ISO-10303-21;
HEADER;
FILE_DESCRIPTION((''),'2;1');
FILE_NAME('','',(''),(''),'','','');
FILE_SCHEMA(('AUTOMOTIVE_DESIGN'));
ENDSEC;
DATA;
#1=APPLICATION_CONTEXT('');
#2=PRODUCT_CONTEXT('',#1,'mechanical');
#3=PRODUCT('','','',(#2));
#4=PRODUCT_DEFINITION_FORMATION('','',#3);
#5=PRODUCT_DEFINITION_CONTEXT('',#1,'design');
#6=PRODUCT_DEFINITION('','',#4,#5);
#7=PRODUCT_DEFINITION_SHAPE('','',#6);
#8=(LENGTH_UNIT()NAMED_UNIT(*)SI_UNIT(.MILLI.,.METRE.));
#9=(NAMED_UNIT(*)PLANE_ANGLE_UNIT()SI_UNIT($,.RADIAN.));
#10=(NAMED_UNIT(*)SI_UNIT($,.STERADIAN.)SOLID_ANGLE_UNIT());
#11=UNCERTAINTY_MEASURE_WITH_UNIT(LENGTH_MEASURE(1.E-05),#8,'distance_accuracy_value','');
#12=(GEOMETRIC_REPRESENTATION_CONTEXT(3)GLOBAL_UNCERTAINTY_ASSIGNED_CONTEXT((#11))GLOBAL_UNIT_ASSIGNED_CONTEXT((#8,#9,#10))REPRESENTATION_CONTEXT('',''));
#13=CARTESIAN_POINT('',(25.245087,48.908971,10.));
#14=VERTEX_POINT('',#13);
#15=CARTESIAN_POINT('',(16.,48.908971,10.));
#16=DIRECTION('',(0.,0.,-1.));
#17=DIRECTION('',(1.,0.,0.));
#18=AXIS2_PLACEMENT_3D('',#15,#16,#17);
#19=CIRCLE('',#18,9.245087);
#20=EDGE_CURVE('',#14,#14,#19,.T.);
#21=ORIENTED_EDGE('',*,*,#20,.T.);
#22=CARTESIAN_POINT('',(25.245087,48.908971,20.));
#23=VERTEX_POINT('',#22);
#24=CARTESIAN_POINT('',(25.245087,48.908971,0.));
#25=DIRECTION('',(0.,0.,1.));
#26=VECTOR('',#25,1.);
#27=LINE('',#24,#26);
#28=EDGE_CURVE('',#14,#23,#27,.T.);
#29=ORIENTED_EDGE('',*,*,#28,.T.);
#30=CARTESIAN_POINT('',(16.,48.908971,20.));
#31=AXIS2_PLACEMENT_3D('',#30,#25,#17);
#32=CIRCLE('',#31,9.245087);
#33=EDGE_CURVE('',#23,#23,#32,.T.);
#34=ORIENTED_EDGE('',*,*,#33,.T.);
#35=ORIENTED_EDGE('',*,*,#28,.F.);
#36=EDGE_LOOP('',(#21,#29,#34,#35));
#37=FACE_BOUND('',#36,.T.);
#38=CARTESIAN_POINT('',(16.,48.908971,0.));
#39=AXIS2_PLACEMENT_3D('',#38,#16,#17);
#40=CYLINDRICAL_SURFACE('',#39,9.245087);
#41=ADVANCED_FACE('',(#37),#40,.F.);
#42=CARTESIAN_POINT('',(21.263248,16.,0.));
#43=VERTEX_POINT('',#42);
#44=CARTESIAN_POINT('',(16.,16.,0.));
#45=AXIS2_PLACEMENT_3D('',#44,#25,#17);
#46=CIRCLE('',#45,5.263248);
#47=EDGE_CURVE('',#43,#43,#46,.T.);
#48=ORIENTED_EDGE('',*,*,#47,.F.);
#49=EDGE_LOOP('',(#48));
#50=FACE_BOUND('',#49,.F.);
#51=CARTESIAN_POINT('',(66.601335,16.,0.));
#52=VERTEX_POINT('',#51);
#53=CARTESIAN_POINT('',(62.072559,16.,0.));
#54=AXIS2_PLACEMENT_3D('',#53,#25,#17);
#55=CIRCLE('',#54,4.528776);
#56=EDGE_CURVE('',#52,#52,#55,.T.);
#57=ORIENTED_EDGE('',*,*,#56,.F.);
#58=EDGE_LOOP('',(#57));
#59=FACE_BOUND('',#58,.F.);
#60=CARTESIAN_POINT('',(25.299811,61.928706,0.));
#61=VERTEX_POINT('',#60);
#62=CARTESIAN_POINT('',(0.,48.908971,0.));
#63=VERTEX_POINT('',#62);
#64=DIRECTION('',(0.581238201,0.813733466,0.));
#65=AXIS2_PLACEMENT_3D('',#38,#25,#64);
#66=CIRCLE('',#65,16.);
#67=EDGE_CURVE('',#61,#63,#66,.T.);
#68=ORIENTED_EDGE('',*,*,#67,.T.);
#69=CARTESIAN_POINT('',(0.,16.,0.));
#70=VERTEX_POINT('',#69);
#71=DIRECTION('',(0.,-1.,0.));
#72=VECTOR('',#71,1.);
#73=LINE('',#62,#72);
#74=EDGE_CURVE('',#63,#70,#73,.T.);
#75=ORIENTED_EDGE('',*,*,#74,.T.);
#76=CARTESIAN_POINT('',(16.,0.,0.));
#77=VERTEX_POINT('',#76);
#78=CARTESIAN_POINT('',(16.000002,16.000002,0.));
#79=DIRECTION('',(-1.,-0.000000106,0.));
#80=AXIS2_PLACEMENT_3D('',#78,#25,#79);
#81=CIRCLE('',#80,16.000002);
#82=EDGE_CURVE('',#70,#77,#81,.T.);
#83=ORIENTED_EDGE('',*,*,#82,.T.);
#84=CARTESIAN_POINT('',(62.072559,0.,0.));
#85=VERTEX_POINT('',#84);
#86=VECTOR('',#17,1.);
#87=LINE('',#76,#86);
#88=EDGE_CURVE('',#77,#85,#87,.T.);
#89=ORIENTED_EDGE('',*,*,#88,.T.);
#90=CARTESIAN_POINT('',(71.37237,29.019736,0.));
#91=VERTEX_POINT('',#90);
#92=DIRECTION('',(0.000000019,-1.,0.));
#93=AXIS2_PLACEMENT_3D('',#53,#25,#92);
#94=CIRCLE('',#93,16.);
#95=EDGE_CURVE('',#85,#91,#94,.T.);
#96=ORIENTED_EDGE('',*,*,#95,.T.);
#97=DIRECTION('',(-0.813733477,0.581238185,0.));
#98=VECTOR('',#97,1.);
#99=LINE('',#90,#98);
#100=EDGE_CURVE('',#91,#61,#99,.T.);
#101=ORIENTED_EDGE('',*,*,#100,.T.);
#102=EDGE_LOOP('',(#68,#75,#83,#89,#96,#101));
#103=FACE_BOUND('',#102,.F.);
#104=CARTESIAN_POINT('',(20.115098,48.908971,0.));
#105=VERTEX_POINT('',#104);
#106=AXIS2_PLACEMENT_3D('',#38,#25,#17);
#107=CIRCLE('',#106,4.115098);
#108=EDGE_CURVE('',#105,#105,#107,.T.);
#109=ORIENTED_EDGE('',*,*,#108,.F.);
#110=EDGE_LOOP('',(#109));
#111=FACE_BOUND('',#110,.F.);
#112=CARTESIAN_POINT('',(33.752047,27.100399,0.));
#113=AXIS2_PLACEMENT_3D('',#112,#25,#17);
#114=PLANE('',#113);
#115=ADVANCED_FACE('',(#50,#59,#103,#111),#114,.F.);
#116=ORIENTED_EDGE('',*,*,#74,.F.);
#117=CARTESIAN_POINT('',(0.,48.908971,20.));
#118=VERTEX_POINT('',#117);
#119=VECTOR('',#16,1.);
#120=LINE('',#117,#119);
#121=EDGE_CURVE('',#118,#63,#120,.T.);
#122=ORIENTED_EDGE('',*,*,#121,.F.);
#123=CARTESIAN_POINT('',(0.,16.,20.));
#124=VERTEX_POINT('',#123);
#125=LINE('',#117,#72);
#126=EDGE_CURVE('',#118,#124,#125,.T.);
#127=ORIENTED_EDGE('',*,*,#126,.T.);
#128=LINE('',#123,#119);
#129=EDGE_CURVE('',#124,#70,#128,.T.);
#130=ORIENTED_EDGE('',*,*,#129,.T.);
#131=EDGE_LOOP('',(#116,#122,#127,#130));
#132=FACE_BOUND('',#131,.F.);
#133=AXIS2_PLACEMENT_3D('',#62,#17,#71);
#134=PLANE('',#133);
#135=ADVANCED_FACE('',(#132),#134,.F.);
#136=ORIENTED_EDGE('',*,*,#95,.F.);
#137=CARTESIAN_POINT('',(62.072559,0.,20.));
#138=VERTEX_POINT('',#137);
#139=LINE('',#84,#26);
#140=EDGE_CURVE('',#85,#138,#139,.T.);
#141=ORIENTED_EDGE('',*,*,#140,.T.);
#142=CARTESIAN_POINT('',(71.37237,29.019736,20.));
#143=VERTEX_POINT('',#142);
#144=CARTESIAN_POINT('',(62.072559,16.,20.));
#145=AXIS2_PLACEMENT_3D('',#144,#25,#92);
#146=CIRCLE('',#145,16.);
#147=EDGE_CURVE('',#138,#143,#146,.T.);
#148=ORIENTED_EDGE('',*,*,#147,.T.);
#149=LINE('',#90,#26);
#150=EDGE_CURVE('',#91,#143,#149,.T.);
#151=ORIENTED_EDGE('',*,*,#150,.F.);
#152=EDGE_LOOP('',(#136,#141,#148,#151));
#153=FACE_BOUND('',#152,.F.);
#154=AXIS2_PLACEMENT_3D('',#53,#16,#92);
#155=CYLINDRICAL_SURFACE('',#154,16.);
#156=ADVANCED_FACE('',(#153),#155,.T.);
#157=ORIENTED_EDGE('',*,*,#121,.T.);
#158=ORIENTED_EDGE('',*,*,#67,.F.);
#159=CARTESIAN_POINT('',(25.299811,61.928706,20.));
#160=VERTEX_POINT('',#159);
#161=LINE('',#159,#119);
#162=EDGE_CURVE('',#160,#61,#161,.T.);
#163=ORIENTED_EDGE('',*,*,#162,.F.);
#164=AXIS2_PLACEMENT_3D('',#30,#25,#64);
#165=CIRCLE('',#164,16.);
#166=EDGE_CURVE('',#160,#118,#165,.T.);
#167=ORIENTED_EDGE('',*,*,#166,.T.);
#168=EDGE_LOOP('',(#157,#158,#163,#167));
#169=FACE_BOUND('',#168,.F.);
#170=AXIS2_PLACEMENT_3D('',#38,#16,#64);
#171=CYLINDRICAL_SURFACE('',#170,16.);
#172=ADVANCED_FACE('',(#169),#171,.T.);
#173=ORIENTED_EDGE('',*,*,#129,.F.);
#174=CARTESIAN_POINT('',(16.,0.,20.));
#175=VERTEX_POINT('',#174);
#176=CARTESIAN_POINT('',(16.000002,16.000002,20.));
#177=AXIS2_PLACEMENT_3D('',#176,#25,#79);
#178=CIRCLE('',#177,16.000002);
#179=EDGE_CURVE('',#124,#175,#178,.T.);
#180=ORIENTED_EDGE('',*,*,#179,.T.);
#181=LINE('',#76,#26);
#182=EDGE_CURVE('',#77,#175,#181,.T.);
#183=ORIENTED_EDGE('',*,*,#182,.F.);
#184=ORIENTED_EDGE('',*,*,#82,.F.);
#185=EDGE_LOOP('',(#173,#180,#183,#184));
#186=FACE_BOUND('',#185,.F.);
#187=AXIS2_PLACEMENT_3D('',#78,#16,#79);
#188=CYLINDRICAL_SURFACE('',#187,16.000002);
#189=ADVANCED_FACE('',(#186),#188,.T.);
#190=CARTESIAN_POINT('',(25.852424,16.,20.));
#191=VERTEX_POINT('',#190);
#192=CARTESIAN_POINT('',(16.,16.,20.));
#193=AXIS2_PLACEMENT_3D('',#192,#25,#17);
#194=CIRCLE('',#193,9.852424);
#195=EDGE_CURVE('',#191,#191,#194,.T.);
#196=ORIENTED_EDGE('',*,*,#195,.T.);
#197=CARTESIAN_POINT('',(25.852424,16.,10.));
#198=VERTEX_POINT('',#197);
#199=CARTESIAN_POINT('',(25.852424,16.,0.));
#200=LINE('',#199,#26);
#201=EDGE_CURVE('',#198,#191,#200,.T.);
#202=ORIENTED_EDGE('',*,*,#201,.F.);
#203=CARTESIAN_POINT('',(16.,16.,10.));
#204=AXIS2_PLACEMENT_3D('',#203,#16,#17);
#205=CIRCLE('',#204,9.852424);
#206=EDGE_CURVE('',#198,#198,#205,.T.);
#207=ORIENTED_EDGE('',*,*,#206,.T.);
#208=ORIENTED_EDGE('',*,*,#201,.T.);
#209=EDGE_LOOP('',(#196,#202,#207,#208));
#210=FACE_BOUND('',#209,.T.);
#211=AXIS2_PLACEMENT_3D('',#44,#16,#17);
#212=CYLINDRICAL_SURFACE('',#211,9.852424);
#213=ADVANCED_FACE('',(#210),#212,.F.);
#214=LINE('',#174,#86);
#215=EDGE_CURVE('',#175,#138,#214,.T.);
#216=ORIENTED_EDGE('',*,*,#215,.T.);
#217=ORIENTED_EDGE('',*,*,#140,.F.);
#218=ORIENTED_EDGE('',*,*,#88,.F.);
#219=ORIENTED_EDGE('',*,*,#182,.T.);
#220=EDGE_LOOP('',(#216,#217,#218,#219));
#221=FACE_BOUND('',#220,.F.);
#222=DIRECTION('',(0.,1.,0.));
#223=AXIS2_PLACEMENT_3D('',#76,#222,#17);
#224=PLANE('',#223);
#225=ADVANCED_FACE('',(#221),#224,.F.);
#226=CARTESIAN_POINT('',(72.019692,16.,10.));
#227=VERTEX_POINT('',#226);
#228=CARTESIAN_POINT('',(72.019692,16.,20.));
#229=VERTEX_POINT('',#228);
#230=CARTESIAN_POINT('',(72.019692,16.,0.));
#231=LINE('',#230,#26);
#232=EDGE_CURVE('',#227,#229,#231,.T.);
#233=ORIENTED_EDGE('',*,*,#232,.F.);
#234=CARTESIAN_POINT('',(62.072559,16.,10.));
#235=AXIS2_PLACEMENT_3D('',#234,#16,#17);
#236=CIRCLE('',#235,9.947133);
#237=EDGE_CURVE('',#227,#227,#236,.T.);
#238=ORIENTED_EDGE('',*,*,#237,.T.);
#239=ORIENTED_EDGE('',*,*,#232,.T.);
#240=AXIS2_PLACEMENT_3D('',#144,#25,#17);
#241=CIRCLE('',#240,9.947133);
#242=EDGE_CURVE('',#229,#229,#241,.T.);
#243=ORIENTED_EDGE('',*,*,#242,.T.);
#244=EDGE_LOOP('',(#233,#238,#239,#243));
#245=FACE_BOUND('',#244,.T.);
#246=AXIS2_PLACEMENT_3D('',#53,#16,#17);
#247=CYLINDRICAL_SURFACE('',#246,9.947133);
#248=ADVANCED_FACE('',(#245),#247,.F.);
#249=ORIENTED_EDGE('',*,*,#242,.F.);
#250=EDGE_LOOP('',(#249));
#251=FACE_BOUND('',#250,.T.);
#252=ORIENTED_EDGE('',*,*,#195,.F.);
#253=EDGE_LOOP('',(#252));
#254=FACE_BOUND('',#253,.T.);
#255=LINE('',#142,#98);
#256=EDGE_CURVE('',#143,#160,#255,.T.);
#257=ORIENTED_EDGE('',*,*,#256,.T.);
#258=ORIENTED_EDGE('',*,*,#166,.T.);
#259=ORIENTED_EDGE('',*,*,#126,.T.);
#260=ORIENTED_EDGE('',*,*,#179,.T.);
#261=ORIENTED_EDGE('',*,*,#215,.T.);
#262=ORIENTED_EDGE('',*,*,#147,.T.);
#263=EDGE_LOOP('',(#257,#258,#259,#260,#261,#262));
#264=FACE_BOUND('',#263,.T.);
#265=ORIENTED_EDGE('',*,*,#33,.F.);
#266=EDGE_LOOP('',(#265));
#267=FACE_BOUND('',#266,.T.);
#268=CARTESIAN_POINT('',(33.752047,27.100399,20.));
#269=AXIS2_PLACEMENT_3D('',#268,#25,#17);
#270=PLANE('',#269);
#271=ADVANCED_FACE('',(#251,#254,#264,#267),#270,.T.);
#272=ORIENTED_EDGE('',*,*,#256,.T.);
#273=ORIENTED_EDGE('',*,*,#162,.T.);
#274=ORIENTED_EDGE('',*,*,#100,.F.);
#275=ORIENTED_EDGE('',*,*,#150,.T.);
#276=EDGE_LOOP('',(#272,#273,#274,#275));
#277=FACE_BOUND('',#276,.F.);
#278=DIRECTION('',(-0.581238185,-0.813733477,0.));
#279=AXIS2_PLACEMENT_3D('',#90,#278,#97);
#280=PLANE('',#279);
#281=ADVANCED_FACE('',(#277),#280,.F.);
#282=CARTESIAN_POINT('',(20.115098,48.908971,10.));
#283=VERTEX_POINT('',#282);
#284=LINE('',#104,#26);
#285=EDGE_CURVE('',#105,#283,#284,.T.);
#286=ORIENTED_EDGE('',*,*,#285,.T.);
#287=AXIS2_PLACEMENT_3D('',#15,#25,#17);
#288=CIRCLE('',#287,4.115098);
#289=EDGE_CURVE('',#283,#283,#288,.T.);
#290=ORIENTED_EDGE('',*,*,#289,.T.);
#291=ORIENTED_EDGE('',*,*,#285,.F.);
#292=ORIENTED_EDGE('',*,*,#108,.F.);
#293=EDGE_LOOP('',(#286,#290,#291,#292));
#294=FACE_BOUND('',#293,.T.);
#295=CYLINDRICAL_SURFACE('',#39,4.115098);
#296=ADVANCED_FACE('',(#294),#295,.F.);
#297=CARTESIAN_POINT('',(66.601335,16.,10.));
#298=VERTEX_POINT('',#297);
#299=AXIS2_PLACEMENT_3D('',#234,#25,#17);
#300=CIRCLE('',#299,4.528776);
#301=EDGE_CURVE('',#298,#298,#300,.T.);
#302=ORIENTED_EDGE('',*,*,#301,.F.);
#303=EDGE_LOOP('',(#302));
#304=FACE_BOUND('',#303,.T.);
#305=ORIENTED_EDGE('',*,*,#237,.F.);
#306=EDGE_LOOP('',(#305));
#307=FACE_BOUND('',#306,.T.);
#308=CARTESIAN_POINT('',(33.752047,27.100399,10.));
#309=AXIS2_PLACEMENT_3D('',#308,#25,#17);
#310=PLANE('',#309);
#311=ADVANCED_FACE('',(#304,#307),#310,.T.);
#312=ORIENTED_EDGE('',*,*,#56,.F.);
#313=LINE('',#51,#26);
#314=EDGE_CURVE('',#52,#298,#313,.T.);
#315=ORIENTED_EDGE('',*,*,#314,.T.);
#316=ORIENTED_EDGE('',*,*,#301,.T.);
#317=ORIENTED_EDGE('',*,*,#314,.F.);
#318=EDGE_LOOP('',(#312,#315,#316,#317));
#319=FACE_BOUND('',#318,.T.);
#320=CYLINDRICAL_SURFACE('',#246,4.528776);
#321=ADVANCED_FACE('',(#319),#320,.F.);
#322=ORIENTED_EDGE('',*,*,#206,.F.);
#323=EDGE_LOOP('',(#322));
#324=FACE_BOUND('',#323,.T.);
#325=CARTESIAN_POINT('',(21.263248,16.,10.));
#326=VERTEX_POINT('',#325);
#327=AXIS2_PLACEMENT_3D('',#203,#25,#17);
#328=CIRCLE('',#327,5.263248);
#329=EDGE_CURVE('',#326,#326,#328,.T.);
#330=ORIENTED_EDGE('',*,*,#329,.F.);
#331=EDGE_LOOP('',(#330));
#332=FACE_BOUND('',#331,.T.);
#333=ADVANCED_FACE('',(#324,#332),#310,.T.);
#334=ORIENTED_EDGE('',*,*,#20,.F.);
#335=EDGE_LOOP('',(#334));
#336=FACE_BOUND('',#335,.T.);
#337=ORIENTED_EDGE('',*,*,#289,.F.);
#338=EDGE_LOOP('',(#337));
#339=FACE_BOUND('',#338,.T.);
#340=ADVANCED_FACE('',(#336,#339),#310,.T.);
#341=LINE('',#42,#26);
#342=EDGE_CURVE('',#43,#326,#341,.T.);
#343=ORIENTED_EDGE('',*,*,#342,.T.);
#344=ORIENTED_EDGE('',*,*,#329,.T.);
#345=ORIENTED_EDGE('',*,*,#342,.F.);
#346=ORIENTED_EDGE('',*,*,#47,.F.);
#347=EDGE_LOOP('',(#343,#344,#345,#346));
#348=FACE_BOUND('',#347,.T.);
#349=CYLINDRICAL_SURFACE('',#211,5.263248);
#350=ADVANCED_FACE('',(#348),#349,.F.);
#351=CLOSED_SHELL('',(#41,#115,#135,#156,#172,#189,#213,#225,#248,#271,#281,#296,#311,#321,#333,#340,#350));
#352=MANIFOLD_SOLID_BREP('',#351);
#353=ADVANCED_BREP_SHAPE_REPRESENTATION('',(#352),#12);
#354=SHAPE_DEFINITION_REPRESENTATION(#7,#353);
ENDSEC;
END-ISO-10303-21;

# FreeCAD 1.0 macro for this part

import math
import FreeCAD as App
import Part
import Sketcher

V = App.Vector
Q = App.Units.Quantity

doc = App.newDocument("Part")
body = doc.addObject("PartDesign::Body", "Body")

sketch1 = body.newObject("Sketcher::SketchObject", "Sketch")
sketch1.AttachmentSupport = (doc.getObject("XY_Plane"), [""])
sketch1.MapMode = "FlatFace"
sketch1.addGeometry([
    Part.ArcOfCircle(Part.Circle(V(16.000002, 16.000002, 0), V(0, 0, 1), 16.000002), math.radians(-179.999994), math.radians(-90.000006)),
    Part.LineSegment(V(16, 0, 0), V(62.072559, 0, 0)),
    Part.ArcOfCircle(Part.Circle(V(62.072559, 16, 0), V(0, 0, 1), 16), math.radians(-89.999999), math.radians(54.462322)),
    Part.LineSegment(V(71.37237, 29.019736, 0), V(25.299811, 61.928706, 0)),
    Part.ArcOfCircle(Part.Circle(V(16, 48.908971, 0), V(0, 0, 1), 16), math.radians(54.462322), math.radians(179.999999)),
    Part.LineSegment(V(0, 48.908971, 0), V(0, 16, 0)),
    Part.Circle(V(16, 16, 0), V(0, 0, 1), 9.852424),
    Part.Circle(V(62.072559, 16, 0), V(0, 0, 1), 9.947133),
    Part.Circle(V(16, 48.908971, 0), V(0, 0, 1), 9.245087),
], False)
sketch1.addConstraint([
    Sketcher.Constraint("Tangent", 0, 2, 1, 1),
    Sketcher.Constraint("Tangent", 1, 2, 2, 1),
    Sketcher.Constraint("Tangent", 2, 2, 3, 1),
    Sketcher.Constraint("Tangent", 3, 2, 4, 1),
    Sketcher.Constraint("Tangent", 4, 2, 5, 1),
    Sketcher.Constraint("Tangent", 5, 2, 0, 1),
    Sketcher.Constraint("Horizontal", 1),
    Sketcher.Constraint("Vertical", 5),
    Sketcher.Constraint("Coincident", 6, 3, 0, 3),
    Sketcher.Constraint("Coincident", 7, 3, 2, 3),
    Sketcher.Constraint("Coincident", 8, 3, 4, 3),
    Sketcher.Constraint("Equal", 0, 2),
    Sketcher.Constraint("Equal", 2, 4),
    Sketcher.Constraint("PointOnObject", 0, 2, -1),
    Sketcher.Constraint("PointOnObject", 4, 2, -2),
    Sketcher.Constraint("Radius", 0, Q("16.000002 mm")),
    Sketcher.Constraint("Diameter", 6, Q("19.704848 mm")),
    Sketcher.Constraint("Diameter", 7, Q("19.894266 mm")),
    Sketcher.Constraint("Diameter", 8, Q("18.490174 mm")),
    Sketcher.Constraint("DistanceX", 1, 1, 1, 2, Q("46.072559 mm")),
    Sketcher.Constraint("DistanceY", 5, 2, 5, 1, Q("32.908971 mm")),
])
pad1 = body.newObject("PartDesign::Pad", "Pad")
pad1.Profile = sketch1
pad1.Length = 20

sketch2 = body.newObject("Sketcher::SketchObject", "Sketch001")
sketch2.AttachmentSupport = (doc.getObject("XY_Plane"), [""])
sketch2.MapMode = "FlatFace"
sketch2.addGeometry([
    Part.ArcOfCircle(Part.Circle(V(16.000002, 16.000002, 0), V(0, 0, 1), 16.000002), math.radians(-179.999994), math.radians(-90.000006)),
    Part.LineSegment(V(16, 0, 0), V(62.072559, 0, 0)),
    Part.ArcOfCircle(Part.Circle(V(62.072559, 16, 0), V(0, 0, 1), 16), math.radians(-89.999999), math.radians(54.462322)),
    Part.LineSegment(V(71.37237, 29.019736, 0), V(25.299811, 61.928706, 0)),
    Part.ArcOfCircle(Part.Circle(V(16, 48.908971, 0), V(0, 0, 1), 16), math.radians(54.462322), math.radians(179.999999)),
    Part.LineSegment(V(0, 48.908971, 0), V(0, 16, 0)),
    Part.Circle(V(16, 16, 0), V(0, 0, 1), 5.263248),
    Part.Circle(V(62.072559, 16, 0), V(0, 0, 1), 4.528776),
    Part.Circle(V(16, 48.908971, 0), V(0, 0, 1), 4.115098),
], False)
sketch2.addConstraint([
    Sketcher.Constraint("Tangent", 0, 2, 1, 1),
    Sketcher.Constraint("Tangent", 1, 2, 2, 1),
    Sketcher.Constraint("Tangent", 2, 2, 3, 1),
    Sketcher.Constraint("Tangent", 3, 2, 4, 1),
    Sketcher.Constraint("Tangent", 4, 2, 5, 1),
    Sketcher.Constraint("Tangent", 5, 2, 0, 1),
    Sketcher.Constraint("Horizontal", 1),
    Sketcher.Constraint("Vertical", 5),
    Sketcher.Constraint("Coincident", 6, 3, 0, 3),
    Sketcher.Constraint("Coincident", 7, 3, 2, 3),
    Sketcher.Constraint("Coincident", 8, 3, 4, 3),
    Sketcher.Constraint("Equal", 0, 2),
    Sketcher.Constraint("Equal", 2, 4),
    Sketcher.Constraint("PointOnObject", 0, 2, -1),
    Sketcher.Constraint("PointOnObject", 4, 2, -2),
    Sketcher.Constraint("Radius", 0, Q("16.000002 mm")),
    Sketcher.Constraint("Diameter", 7, Q("9.057552 mm")),
    Sketcher.Constraint("Diameter", 6, Q("10.526496 mm")),
    Sketcher.Constraint("Diameter", 8, Q("8.230196 mm")),
    Sketcher.Constraint("DistanceX", 1, 1, 1, 2, Q("46.072559 mm")),
    Sketcher.Constraint("DistanceY", 5, 2, 5, 1, Q("32.908971 mm")),
])
pad2 = body.newObject("PartDesign::Pad", "Pad001")
pad2.Profile = sketch2
pad2.Length = 10

doc.recompute()
